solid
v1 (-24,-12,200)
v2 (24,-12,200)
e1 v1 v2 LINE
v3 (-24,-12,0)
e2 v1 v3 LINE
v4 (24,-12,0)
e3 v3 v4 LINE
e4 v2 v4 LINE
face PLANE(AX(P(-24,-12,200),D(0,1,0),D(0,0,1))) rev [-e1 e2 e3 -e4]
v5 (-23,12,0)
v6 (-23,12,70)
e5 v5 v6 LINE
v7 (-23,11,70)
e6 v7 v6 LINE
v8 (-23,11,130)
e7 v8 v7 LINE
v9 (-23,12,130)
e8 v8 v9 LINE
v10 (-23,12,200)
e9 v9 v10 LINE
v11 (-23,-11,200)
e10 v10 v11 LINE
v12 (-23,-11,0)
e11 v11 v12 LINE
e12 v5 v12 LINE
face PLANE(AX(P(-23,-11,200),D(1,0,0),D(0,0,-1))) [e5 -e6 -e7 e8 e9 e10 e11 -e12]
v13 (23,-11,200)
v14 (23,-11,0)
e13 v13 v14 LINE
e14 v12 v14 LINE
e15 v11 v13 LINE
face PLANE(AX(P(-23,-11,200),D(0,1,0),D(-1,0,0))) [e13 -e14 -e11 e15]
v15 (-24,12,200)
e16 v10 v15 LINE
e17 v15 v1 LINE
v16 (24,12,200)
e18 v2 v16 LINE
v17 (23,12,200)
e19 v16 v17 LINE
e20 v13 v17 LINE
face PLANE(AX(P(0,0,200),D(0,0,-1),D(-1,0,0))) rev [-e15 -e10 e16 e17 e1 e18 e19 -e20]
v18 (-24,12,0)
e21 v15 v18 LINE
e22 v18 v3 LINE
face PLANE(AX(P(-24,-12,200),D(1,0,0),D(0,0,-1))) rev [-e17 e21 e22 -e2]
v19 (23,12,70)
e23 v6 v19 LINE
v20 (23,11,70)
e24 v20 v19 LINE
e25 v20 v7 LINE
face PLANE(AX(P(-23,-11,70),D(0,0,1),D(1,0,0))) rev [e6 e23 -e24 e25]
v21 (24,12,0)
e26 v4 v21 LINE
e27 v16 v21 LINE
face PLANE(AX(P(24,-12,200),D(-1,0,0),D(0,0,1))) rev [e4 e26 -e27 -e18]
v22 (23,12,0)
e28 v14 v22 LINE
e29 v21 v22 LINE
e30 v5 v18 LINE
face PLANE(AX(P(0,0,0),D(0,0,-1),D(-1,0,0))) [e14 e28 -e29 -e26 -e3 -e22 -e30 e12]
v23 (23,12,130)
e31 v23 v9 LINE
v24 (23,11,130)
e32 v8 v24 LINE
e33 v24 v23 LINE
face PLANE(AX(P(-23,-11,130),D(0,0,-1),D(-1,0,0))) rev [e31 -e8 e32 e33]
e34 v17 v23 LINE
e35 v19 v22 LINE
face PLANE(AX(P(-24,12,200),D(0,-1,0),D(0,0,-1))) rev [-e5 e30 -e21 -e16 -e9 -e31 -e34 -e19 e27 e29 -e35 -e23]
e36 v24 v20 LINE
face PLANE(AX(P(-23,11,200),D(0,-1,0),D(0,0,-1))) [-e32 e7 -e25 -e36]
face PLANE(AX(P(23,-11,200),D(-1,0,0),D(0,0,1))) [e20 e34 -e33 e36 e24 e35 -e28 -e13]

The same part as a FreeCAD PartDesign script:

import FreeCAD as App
import Part
import Sketcher

V = App.Vector

doc = App.newDocument("Part")
body = doc.addObject("PartDesign::Body", "Body")

sketch1 = body.newObject("Sketcher::SketchObject", "Sketch")
sketch1.AttachmentSupport = (doc.getObject("XY_Plane"), [""])
sketch1.MapMode = "FlatFace"
sketch1.addGeometry([
    Part.LineSegment(V(-24, 12, 0), V(-24, -12, 0)),
    Part.LineSegment(V(-24, -12, 0), V(24, -12, 0)),
    Part.LineSegment(V(24, -12, 0), V(24, 12, 0)),
    Part.LineSegment(V(24, 12, 0), V(-24, 12, 0)),
    Part.LineSegment(V(23, -11, 0), V(-23, -11, 0)),
    Part.LineSegment(V(-23, -11, 0), V(-23, 11, 0)),
    Part.LineSegment(V(-23, 11, 0), V(23, 11, 0)),
    Part.LineSegment(V(23, 11, 0), V(23, -11, 0)),
], False)
sketch1.addConstraint([
    Sketcher.Constraint("Coincident", 0, 2, 1, 1),
    Sketcher.Constraint("Coincident", 1, 2, 2, 1),
    Sketcher.Constraint("Coincident", 2, 2, 3, 1),
    Sketcher.Constraint("Coincident", 3, 2, 0, 1),
    Sketcher.Constraint("Coincident", 4, 2, 5, 1),
    Sketcher.Constraint("Coincident", 5, 2, 6, 1),
    Sketcher.Constraint("Coincident", 6, 2, 7, 1),
    Sketcher.Constraint("Coincident", 7, 2, 4, 1),
    Sketcher.Constraint("Vertical", 0),
    Sketcher.Constraint("Horizontal", 1),
    Sketcher.Constraint("Vertical", 2),
    Sketcher.Constraint("Horizontal", 3),
    Sketcher.Constraint("Horizontal", 4),
    Sketcher.Constraint("Vertical", 5),
    Sketcher.Constraint("Horizontal", 6),
    Sketcher.Constraint("Vertical", 7),
    Sketcher.Constraint("Symmetric", 0, 2, 2, 2, -1, 1),
    Sketcher.Constraint("Symmetric", 4, 2, 6, 2, -1, 1),
    Sketcher.Constraint("DistanceX", 1, 1, 1, 2, 48.0),
    Sketcher.Constraint("DistanceX", 4, 2, 4, 1, 46.0),
    Sketcher.Constraint("DistanceY", 0, 2, 0, 1, 24.0),
    Sketcher.Constraint("DistanceY", 5, 1, 5, 2, 22.0),
])
pad1 = body.newObject("PartDesign::Pad", "Pad")
pad1.Profile = sketch1
pad1.Length = 200

sketch2 = body.newObject("Sketcher::SketchObject", "Sketch001")
sketch2.AttachmentSupport = (doc.getObject("XZ_Plane"), [""])
sketch2.MapMode = "FlatFace"
sketch2.AttachmentOffset = App.Placement(V(0, 0, -12), App.Rotation())
sketch2.addGeometry([
    Part.LineSegment(V(-23, 130, 0), V(-23, 200, 0)),
    Part.LineSegment(V(-23, 200, 0), V(23, 200, 0)),
    Part.LineSegment(V(23, 200, 0), V(23, 130, 0)),
    Part.LineSegment(V(23, 130, 0), V(-23, 130, 0)),
    Part.LineSegment(V(-23, 0, 0), V(-23, 70, 0)),
    Part.LineSegment(V(-23, 70, 0), V(23, 70, 0)),
    Part.LineSegment(V(23, 70, 0), V(23, 0, 0)),
    Part.LineSegment(V(23, 0, 0), V(-23, 0, 0)),
], False)
sketch2.addConstraint([
    Sketcher.Constraint("Coincident", 0, 2, 1, 1),
    Sketcher.Constraint("Coincident", 1, 2, 2, 1),
    Sketcher.Constraint("Coincident", 2, 2, 3, 1),
    Sketcher.Constraint("Coincident", 3, 2, 0, 1),
    Sketcher.Constraint("Coincident", 4, 2, 5, 1),
    Sketcher.Constraint("Coincident", 5, 2, 6, 1),
    Sketcher.Constraint("Coincident", 6, 2, 7, 1),
    Sketcher.Constraint("Coincident", 7, 2, 4, 1),
    Sketcher.Constraint("Vertical", 0),
    Sketcher.Constraint("Horizontal", 1),
    Sketcher.Constraint("Vertical", 2),
    Sketcher.Constraint("Horizontal", 3),
    Sketcher.Constraint("Vertical", 4),
    Sketcher.Constraint("Horizontal", 5),
    Sketcher.Constraint("Vertical", 6),
    Sketcher.Constraint("Horizontal", 7),
    Sketcher.Constraint("Symmetric", 6, 2, 7, 2, -1, 1),
    Sketcher.Constraint("Vertical", 3, 2, 4, 2),
    Sketcher.Constraint("Vertical", 2, 2, 5, 2),
    Sketcher.Constraint("Equal", 2, 4),
    Sketcher.Constraint("DistanceX", 1, 1, 1, 2, 46.0),
    Sketcher.Constraint("DistanceY", 0, 1, 0, 2, 70.0),
    Sketcher.Constraint("DistanceY", -1, 1, 0, 2, 200.0),
])
pocket1 = body.newObject("PartDesign::Pocket", "Pocket")
pocket1.Profile = sketch2
pocket1.Length = 23
pocket1.Reversed = True

doc.recompute()
